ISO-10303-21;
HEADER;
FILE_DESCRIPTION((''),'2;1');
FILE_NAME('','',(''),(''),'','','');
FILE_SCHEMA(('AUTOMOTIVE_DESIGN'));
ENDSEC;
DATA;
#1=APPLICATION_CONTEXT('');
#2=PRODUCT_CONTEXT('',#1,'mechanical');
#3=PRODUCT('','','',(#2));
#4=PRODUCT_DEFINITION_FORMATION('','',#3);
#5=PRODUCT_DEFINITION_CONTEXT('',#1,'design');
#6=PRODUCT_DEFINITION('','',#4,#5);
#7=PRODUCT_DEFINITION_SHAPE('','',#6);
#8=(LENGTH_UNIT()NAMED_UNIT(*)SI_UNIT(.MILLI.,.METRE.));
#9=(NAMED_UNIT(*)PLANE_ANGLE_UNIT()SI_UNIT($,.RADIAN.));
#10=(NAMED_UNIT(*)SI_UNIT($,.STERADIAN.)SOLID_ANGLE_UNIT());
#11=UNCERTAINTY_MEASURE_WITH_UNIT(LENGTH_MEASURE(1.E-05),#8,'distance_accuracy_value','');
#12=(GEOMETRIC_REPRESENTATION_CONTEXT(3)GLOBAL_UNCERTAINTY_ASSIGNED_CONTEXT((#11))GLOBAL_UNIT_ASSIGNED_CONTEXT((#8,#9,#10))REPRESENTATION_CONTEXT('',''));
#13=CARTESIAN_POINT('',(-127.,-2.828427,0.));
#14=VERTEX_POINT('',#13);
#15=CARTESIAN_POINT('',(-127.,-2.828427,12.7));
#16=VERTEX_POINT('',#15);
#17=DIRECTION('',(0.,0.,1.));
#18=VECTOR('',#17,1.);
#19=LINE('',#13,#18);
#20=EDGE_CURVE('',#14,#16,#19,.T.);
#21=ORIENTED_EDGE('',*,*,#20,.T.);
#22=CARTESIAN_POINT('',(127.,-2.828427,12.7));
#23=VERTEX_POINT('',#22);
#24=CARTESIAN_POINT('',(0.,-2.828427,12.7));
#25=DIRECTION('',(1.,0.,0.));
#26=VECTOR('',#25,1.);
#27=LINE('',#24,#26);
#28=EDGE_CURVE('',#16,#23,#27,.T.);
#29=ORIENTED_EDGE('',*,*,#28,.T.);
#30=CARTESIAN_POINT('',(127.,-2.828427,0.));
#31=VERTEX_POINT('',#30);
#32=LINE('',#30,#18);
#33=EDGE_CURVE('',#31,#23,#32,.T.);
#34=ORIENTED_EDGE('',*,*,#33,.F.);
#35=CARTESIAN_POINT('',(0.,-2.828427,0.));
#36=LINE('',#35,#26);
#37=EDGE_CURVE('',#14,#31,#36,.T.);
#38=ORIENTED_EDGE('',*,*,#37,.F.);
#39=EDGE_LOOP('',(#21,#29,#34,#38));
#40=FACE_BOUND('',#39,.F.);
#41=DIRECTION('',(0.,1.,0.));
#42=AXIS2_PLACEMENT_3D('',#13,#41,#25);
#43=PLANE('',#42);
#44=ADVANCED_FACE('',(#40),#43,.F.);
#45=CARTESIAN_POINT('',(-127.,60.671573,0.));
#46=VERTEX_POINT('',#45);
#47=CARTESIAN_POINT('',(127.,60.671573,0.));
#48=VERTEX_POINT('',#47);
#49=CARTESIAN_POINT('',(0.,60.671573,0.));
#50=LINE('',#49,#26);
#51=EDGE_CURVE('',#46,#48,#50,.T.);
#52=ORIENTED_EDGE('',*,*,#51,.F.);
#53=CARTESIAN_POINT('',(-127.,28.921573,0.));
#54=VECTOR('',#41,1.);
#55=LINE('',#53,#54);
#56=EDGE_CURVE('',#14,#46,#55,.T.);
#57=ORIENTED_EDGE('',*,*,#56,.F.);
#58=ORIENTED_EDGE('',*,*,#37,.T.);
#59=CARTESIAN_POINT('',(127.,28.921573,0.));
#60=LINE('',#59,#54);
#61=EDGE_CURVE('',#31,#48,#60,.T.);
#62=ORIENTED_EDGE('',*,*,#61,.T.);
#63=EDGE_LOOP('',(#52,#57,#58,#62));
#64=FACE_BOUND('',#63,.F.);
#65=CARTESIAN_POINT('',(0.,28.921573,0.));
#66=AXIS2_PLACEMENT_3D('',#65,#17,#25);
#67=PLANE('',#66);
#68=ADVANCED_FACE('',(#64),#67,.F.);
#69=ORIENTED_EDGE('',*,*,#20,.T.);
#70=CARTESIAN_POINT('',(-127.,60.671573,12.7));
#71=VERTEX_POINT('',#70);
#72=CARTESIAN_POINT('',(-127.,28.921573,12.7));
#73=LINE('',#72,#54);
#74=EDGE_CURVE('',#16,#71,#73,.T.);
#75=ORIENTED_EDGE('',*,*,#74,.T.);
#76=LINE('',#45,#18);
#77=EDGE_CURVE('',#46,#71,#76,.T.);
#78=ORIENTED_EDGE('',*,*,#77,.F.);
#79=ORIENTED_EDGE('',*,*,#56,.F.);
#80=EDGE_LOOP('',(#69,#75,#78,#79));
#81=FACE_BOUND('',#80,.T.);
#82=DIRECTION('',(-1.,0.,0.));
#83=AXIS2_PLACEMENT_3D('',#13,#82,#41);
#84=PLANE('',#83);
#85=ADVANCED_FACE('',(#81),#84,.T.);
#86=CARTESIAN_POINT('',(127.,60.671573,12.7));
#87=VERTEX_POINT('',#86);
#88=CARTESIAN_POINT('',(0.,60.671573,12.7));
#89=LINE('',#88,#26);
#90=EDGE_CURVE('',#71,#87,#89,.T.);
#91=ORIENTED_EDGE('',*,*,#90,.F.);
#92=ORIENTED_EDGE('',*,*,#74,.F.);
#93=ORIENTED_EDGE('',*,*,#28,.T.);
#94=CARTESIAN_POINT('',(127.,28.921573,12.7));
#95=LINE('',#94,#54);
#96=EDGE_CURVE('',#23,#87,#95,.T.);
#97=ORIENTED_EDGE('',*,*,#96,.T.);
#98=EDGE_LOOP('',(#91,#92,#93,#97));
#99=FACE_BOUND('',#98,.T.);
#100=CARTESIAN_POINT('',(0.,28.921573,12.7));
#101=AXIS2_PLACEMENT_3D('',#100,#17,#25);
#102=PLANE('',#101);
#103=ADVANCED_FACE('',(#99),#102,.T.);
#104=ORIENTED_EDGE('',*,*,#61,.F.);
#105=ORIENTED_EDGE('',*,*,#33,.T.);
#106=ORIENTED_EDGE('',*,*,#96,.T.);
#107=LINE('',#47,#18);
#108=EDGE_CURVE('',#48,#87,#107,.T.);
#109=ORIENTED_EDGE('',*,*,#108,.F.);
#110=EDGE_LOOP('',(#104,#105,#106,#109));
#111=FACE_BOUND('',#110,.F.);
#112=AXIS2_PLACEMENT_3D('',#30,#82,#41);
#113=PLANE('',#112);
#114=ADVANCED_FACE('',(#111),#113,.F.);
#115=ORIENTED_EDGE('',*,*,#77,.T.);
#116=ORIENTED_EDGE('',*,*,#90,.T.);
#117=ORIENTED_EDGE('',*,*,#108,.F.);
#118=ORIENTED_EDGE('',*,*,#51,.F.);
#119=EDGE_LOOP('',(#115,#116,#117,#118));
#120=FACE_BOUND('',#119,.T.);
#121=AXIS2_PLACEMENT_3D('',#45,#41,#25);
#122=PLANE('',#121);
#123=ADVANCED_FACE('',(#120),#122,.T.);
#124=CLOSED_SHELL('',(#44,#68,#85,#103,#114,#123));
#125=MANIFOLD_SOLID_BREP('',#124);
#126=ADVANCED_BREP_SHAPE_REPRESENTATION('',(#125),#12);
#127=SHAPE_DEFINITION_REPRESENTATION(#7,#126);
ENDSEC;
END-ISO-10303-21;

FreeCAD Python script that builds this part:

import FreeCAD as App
import Part
import Sketcher
from FreeCAD import Vector
Q = App.Units.Quantity

doc = App.newDocument("Part")
body = doc.addObject("PartDesign::Body", "Body")

# Sketch on XY plane
sketch1 = body.newObject("Sketcher::SketchObject", "Sketch")
sketch1.AttachmentSupport = (doc.getObject("XY_Plane"), [""])
sketch1.MapMode = "FlatFace"
sketch1.addGeometry(Part.LineSegment(Vector(-127, 60.671573, 0), Vector(-127, -2.828427, 0)), False)
sketch1.addGeometry(Part.LineSegment(Vector(-127, -2.828427, 0), Vector(127, -2.828427, 0)), False)
sketch1.addGeometry(Part.LineSegment(Vector(127, -2.828427, 0), Vector(127, 60.671573, 0)), False)
sketch1.addGeometry(Part.LineSegment(Vector(127, 60.671573, 0), Vector(-127, 60.671573, 0)), False)
sketch1.addConstraint(Sketcher.Constraint("Coincident", 0, 2, 1, 1))
sketch1.addConstraint(Sketcher.Constraint("Coincident", 1, 2, 2, 1))
sketch1.addConstraint(Sketcher.Constraint("Coincident", 2, 2, 3, 1))
sketch1.addConstraint(Sketcher.Constraint("Coincident", 3, 2, 0, 1))
sketch1.addConstraint(Sketcher.Constraint("Vertical", 0))
sketch1.addConstraint(Sketcher.Constraint("Horizontal", 1))
sketch1.addConstraint(Sketcher.Constraint("Vertical", 2))
sketch1.addConstraint(Sketcher.Constraint("Horizontal", 3))
sketch1.addConstraint(Sketcher.Constraint("DistanceX", 1, 1, 1, 2, Q("10 in")))
sketch1.addConstraint(Sketcher.Constraint("DistanceY", 0, 2, 0, 1, Q("2.5 in")))
sketch1.addConstraint(Sketcher.Constraint("DistanceX", 0, 2, -1, 1, Q("5 in")))
sketch1.addConstraint(Sketcher.Constraint("DistanceY", 0, 2, -1, 1, 2.828427))
pad1 = body.newObject("PartDesign::Pad", "Pad")
pad1.Profile = sketch1
pad1.Length = Q("0.5 in")

doc.recompute()
